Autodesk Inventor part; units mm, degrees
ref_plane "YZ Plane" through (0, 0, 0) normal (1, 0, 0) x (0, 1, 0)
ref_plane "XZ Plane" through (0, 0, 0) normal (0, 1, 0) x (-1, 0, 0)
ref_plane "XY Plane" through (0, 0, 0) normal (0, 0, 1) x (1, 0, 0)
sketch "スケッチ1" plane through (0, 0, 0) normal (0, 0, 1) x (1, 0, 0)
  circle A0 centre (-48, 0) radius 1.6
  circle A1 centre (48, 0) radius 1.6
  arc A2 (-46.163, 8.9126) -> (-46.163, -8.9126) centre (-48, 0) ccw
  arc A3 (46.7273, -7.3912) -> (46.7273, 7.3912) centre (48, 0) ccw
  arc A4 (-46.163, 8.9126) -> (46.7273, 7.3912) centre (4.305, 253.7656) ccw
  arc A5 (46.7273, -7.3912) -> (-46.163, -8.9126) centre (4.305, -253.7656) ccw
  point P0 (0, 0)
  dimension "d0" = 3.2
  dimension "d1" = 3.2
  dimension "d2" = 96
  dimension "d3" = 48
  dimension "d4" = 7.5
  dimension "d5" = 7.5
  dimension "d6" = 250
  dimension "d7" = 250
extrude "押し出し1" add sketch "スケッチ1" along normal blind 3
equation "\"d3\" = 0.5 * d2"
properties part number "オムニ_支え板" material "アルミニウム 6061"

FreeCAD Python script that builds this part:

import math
import FreeCAD as App
import Part
import Sketcher

doc = App.newDocument("Part")
body = doc.addObject("PartDesign::Body", "Body")

# Sketch on XY plane
sketch1 = body.newObject("Sketcher::SketchObject", "Sketch")
sketch1.AttachmentSupport = (doc.getObject("XY_Plane"), [""])
sketch1.MapMode = "FlatFace"
sketch1.addGeometry([
    Part.ArcOfCircle(Part.Circle(App.Vector(4.3, 253.8, 0), App.Vector(0, 0, 1), 250), math.radians(-102), math.radians(-80)),  # 0
    Part.ArcOfCircle(Part.Circle(App.Vector(-48, 0, 0), App.Vector(0, 0, 1), 9.1), math.radians(78), math.radians(282)),  # 1
    Part.ArcOfCircle(Part.Circle(App.Vector(4.3, -253.8, 0), App.Vector(0, 0, 1), 250), math.radians(80), math.radians(102)),  # 2
    Part.ArcOfCircle(Part.Circle(App.Vector(48, 0, 0), App.Vector(0, 0, 1), 7.5), math.radians(-100), math.radians(100)),  # 3
    Part.Circle(App.Vector(-48, 0, 0), App.Vector(0, 0, 1), 1.6),  # 4
    Part.Circle(App.Vector(48, 0, 0), App.Vector(0, 0, 1), 1.6),  # 5
], False)
sketch1.addConstraint([
    Sketcher.Constraint("Tangent", 0, 1, 1, 1),
    Sketcher.Constraint("Tangent", 1, 2, 2, 2),
    Sketcher.Constraint("Tangent", 2, 1, 3, 1),
    Sketcher.Constraint("Tangent", 3, 2, 0, 2),
    Sketcher.Constraint("Coincident", 4, 3, 1, 3),
    Sketcher.Constraint("Coincident", 5, 3, 3, 3),
    Sketcher.Constraint("Equal", 0, 2),
    Sketcher.Constraint("Equal", 4, 5),
    Sketcher.Constraint("Symmetric", 1, 3, 3, 3, -1, 1),
    Sketcher.Constraint("PointOnObject", 1, 3, -1),
    Sketcher.Constraint("Radius", 0, 250.0),
    Sketcher.Constraint("Diameter", 4, 3.2),
    Sketcher.Constraint("Radius", 3, 7.5),
    Sketcher.Constraint("DistanceX", 1, 3, -1, 1, 48.0),
    Sketcher.Constraint("Radius", 1, 9.1),
])
pad1 = body.newObject("PartDesign::Pad", "Pad")
pad1.Profile = sketch1
pad1.Length = 3

doc.recompute()
